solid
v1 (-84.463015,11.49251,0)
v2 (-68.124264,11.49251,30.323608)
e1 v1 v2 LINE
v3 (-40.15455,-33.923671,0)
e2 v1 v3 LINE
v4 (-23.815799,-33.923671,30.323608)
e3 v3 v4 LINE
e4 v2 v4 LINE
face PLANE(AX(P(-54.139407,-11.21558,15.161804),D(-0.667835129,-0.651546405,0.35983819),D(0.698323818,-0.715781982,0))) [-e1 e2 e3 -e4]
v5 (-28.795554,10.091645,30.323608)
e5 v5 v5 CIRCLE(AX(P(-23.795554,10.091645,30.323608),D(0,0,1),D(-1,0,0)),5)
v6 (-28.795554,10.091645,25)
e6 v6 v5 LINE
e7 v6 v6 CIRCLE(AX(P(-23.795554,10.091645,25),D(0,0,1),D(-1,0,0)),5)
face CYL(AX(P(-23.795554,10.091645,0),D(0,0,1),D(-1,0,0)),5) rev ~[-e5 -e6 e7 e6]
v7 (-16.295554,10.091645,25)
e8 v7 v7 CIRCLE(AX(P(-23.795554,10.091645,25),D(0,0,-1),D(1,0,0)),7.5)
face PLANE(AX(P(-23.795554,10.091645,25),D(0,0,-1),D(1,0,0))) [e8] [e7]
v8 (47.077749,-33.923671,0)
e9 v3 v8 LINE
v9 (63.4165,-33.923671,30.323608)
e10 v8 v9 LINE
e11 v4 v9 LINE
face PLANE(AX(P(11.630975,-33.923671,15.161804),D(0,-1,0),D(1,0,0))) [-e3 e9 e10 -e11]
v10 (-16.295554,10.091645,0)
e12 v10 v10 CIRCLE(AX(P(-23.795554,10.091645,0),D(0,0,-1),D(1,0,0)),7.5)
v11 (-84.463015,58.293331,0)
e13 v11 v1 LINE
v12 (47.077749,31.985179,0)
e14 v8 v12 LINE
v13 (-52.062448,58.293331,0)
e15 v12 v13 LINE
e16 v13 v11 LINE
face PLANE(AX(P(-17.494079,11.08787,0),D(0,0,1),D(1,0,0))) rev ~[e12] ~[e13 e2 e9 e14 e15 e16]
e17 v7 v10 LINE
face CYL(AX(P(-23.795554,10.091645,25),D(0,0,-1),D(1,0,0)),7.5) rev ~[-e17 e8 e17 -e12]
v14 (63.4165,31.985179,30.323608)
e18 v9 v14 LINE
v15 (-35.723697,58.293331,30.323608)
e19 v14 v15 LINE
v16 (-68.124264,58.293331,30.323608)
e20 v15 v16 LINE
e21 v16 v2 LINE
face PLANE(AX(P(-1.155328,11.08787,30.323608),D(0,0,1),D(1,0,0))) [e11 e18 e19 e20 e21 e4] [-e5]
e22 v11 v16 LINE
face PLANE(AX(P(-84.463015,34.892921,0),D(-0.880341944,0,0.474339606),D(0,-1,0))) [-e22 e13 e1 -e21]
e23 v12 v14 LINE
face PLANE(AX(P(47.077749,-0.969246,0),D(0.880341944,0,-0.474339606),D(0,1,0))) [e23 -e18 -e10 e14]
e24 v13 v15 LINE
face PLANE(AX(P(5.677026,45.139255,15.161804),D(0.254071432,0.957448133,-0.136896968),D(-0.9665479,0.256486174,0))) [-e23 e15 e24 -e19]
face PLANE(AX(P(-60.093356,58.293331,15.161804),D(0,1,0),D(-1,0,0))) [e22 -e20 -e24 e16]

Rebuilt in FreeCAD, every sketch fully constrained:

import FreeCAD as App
import Part
import Sketcher

V = App.Vector
Q = App.Units.Quantity


def add_polygon(sketch, points):
    """Adds a closed chain of lines whose ends are joined by coincident constraints."""
    first, n = sketch.GeometryCount, len(points)
    for a, b in zip(points, points[1:] + points[:1]):
        sketch.addGeometry(Part.LineSegment(App.Vector(*a, 0), App.Vector(*b, 0)), False)
    for i in range(n):
        sketch.addConstraint(Sketcher.Constraint("Coincident", first + i, 2, first + (i + 1) % n, 1))

doc = App.newDocument("Part")
body = doc.addObject("PartDesign::Body", "Body")

sketch1 = body.newObject("Sketcher::SketchObject", "Sketch")
sketch1.AttachmentSupport = (doc.getObject("XY_Plane"), [""])
sketch1.MapMode = "FlatFace"
add_polygon(sketch1, [(47, 32), (-52, 58), (-84, 58), (-84, 11), (-40, -34), (47, -34)])
sketch1.addConstraint(Sketcher.Constraint("Horizontal", 1))
sketch1.addConstraint(Sketcher.Constraint("Vertical", 2))
sketch1.addConstraint(Sketcher.Constraint("Horizontal", 4))
sketch1.addConstraint(Sketcher.Constraint("Vertical", 5))
sketch1.addConstraint(Sketcher.Constraint("DistanceX", 4, 1, 4, 2, Q("87.232299 mm")))
sketch1.addConstraint(Sketcher.Constraint("DistanceY", 2, 2, 2, 1, Q("46.800821 mm")))
sketch1.addConstraint(Sketcher.Constraint("DistanceY", 5, 1, 5, 2, Q("65.908849 mm")))
sketch1.addConstraint(Sketcher.Constraint("Distance", 3, Q("63.44974 mm")))
sketch1.addConstraint(Sketcher.Constraint("DistanceX", 1, 2, 1, 1, Q("32.400567 mm")))
sketch1.addConstraint(Sketcher.Constraint("DistanceX", 0, 2, -1, 1, Q("52.062448 mm")))
sketch1.addConstraint(Sketcher.Constraint("DistanceY", -1, 1, 0, 2, Q("58.293331 mm")))
sketch1.addConstraint(Sketcher.Constraint("DistanceX", 3, 2, -1, 1, Q("40.15455 mm")))

sketch2 = body.newObject("Sketcher::SketchObject", "Sketch001")
sketch2.Placement = App.Placement(V(2.575435, 0, -1.387678), App.Rotation(V(0.474339606, 0, 0.880341944), V(0, 1, 0), V(-0.880341944, 0, 0.474339606), "ZXY"))
sketch2.addGeometry(Part.LineSegment(V(2, 0, 0), V(36, 0, 0)), False)
sketch2.addConstraint(Sketcher.Constraint("Horizontal", 0))
sketch2.addConstraint(Sketcher.Constraint("PointOnObject", 0, 1, -1))
sketch2.addConstraint(Sketcher.Constraint("DistanceX", 0, 1, 0, 2, Q("34.445261 mm")))
sketch2.addConstraint(Sketcher.Constraint("DistanceX", -1, 1, 0, 1, Q("1.576294 mm")))
doc.recompute()

additivepipe = body.newObject("PartDesign::AdditivePipe", "AdditivePipe")
additivepipe.Profile = sketch1
additivepipe.Spine = (sketch2, ["Edge1"])

sketch3 = body.newObject("Sketcher::SketchObject", "Sketch002")
sketch3.AttachmentSupport = (doc.getObject("XY_Plane"), [""])
sketch3.MapMode = "FlatFace"
sketch3.addGeometry(Part.Circle(V(-24, 10, 0), V(0, 0, 1), 5), False)
sketch3.addConstraint(Sketcher.Constraint("Diameter", 0, Q("10 mm")))
sketch3.addConstraint(Sketcher.Constraint("DistanceX", 0, 3, -1, 1, Q("23.795554 mm")))
sketch3.addConstraint(Sketcher.Constraint("DistanceY", -1, 1, 0, 3, Q("10.091645 mm")))
doc.recompute()
hole = body.newObject("PartDesign::Hole", "Hole")
hole.Profile = sketch3
hole.ThreadType = "None"
hole.Diameter = 10
hole.DepthType = "ThroughAll"
hole.HoleCutType = "Counterbore"
hole.HoleCutDiameter = 15
hole.HoleCutDepth = 25
hole.Reversed = True

doc.recompute()
